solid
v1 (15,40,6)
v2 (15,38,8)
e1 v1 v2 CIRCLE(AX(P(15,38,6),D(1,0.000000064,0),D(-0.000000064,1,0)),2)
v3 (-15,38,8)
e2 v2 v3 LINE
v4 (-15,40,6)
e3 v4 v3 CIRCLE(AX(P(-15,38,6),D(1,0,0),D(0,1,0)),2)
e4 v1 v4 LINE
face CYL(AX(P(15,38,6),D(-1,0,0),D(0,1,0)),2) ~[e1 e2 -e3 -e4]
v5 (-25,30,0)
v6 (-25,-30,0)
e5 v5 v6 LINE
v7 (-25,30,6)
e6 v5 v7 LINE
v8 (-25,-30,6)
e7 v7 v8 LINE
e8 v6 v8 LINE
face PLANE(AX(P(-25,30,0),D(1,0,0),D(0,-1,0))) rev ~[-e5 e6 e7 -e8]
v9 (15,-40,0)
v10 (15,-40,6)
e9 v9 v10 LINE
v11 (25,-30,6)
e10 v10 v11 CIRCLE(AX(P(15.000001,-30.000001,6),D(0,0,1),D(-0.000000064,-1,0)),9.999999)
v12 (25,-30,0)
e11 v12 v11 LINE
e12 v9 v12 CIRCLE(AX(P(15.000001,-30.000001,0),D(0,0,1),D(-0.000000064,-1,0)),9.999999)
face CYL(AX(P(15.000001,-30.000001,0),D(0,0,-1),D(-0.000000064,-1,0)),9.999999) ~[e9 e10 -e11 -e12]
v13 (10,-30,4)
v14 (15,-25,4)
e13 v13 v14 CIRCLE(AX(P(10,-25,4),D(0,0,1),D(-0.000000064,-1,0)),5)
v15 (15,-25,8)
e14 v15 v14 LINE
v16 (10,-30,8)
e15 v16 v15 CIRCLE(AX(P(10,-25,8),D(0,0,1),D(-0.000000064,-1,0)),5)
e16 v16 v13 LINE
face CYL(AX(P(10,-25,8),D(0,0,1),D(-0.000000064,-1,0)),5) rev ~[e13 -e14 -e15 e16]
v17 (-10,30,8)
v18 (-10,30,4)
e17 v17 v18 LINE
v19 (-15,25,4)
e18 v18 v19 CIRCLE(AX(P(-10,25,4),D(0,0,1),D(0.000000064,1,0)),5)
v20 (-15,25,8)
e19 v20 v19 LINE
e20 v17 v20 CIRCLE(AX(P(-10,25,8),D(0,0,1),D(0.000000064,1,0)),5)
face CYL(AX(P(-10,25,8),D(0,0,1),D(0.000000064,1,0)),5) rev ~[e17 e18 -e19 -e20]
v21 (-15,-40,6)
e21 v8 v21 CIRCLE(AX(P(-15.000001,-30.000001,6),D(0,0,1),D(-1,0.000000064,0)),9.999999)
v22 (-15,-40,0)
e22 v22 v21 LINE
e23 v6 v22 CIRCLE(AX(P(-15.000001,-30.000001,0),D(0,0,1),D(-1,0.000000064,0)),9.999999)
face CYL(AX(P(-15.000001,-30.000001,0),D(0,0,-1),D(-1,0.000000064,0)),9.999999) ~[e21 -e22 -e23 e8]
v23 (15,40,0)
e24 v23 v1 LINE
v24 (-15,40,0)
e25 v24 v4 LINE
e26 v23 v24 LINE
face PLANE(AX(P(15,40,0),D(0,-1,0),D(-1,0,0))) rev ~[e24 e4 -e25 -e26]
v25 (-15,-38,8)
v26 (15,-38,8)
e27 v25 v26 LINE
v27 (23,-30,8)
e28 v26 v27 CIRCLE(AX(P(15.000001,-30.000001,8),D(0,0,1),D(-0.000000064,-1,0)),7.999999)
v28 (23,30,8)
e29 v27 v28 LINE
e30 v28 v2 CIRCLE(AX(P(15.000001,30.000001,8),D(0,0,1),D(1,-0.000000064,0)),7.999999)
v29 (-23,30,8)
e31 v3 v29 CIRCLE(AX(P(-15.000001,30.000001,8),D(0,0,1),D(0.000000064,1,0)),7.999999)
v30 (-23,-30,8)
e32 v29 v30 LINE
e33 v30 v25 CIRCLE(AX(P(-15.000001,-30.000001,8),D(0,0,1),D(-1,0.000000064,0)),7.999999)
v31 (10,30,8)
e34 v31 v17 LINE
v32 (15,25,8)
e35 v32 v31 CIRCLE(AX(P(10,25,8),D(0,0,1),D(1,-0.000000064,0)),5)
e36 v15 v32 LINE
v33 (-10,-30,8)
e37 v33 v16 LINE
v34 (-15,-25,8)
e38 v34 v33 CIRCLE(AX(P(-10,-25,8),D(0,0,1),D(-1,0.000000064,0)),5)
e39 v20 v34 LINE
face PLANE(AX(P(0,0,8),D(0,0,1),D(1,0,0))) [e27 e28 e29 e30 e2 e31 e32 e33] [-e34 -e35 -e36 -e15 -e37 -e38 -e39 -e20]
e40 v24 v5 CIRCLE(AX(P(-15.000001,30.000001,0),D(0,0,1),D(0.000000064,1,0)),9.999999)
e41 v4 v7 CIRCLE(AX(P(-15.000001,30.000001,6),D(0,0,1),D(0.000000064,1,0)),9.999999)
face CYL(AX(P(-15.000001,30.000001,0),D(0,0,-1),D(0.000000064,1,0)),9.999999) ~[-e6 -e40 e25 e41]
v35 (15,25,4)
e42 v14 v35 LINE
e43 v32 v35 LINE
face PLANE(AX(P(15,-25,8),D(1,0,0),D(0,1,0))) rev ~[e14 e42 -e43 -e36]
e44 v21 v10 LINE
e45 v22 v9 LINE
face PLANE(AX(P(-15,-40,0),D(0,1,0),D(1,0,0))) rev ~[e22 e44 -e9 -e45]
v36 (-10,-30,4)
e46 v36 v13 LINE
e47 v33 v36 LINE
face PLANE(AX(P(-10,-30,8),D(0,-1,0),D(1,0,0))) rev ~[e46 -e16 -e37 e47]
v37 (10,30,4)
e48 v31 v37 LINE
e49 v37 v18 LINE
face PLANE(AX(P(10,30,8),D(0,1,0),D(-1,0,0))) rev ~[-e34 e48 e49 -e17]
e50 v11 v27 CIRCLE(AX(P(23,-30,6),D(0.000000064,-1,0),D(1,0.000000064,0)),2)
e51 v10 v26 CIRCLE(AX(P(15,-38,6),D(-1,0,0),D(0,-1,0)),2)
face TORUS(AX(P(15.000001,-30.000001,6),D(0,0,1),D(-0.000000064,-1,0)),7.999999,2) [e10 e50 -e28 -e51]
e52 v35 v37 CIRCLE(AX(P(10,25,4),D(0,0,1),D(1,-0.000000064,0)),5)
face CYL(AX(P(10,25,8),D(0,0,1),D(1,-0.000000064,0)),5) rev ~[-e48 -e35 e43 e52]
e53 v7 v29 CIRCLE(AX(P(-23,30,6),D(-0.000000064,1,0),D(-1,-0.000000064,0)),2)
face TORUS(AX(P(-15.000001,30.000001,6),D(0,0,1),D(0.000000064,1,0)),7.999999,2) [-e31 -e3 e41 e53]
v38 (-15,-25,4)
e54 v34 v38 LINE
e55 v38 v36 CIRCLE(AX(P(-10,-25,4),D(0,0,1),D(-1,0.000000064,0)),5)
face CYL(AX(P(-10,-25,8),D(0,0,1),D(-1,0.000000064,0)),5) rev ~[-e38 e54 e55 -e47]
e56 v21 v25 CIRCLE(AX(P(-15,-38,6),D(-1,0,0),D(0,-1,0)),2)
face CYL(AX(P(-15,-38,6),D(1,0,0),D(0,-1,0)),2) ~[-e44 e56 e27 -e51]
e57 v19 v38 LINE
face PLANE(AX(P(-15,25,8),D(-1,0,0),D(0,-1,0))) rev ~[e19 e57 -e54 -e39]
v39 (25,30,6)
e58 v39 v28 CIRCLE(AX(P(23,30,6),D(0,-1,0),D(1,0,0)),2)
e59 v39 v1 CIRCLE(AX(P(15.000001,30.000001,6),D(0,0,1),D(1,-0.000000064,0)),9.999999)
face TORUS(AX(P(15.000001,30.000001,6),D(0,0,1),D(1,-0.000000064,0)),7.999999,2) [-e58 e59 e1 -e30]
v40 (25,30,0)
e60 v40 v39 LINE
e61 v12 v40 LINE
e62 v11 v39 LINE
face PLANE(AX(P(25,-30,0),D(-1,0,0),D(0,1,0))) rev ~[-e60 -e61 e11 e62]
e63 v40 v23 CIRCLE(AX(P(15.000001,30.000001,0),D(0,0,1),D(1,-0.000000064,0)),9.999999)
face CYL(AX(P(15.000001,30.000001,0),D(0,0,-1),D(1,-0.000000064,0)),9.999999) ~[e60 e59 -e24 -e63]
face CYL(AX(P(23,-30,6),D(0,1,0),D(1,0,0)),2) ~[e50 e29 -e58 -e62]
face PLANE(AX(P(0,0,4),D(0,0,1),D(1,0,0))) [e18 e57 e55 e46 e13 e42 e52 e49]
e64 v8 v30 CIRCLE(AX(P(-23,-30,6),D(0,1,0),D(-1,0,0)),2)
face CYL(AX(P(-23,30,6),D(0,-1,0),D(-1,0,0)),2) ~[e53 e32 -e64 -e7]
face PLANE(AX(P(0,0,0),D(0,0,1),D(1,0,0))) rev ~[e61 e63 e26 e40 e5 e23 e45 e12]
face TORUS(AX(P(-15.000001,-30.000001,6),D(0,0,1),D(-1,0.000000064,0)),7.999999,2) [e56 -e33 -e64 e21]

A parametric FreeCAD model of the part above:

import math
import FreeCAD as App
import Part
import Sketcher
from FreeCAD import Vector
Q = App.Units.Quantity


def edges_at(feature, points):
    """Names of the edges that pass closest to the given points."""
    edges = feature.Shape.Edges
    near = lambda p: min(range(len(edges)), key=lambda i: edges[i].distToShape(Part.Vertex(*p))[0])
    return sorted({f"Edge{near(p) + 1}" for p in points})

doc = App.newDocument("Part")
body = doc.addObject("PartDesign::Body", "Body")

# Sketch on XY plane
sketch1 = body.newObject("Sketcher::SketchObject", "Sketch")
sketch1.AttachmentSupport = (doc.getObject("XY_Plane"), [""])
sketch1.MapMode = "FlatFace"
sketch1.addGeometry([
    Part.LineSegment(Vector(-15, -40, 0), Vector(15, -40, 0)),  # 0
    Part.ArcOfCircle(Part.Circle(Vector(15, -30, 0), Vector(0, 0, 1), 10), math.radians(-90), math.radians(0)),  # 1
    Part.LineSegment(Vector(25, -30, 0), Vector(25, 30, 0)),  # 2
    Part.ArcOfCircle(Part.Circle(Vector(15, 30, 0), Vector(0, 0, 1), 10), math.radians(0), math.radians(90)),  # 3
    Part.LineSegment(Vector(15, 40, 0), Vector(-15, 40, 0)),  # 4
    Part.ArcOfCircle(Part.Circle(Vector(-15, 30, 0), Vector(0, 0, 1), 10), math.radians(90), math.radians(180)),  # 5
    Part.LineSegment(Vector(-25, 30, 0), Vector(-25, -30, 0)),  # 6
    Part.ArcOfCircle(Part.Circle(Vector(-15, -30, 0), Vector(0, 0, 1), 10), math.radians(180), math.radians(270)),  # 7
], False)
sketch1.addConstraint([
    Sketcher.Constraint("Tangent", 0, 2, 1, 1),
    Sketcher.Constraint("Tangent", 1, 2, 2, 1),
    Sketcher.Constraint("Tangent", 2, 2, 3, 1),
    Sketcher.Constraint("Tangent", 3, 2, 4, 1),
    Sketcher.Constraint("Tangent", 4, 2, 5, 1),
    Sketcher.Constraint("Tangent", 5, 2, 6, 1),
    Sketcher.Constraint("Tangent", 6, 2, 7, 1),
    Sketcher.Constraint("Tangent", 7, 2, 0, 1),
    Sketcher.Constraint("Horizontal", 0),
    Sketcher.Constraint("Vertical", 2),
    Sketcher.Constraint("Horizontal", 4),
    Sketcher.Constraint("Vertical", 6),
    Sketcher.Constraint("Equal", 1, 3),
    Sketcher.Constraint("Equal", 3, 5),
    Sketcher.Constraint("Equal", 5, 7),
    Sketcher.Constraint("Symmetric", 1, 3, 5, 3, -1, 1),
    Sketcher.Constraint("Radius", 1, Q("9.999999 mm")),
    Sketcher.Constraint("DistanceX", 0, 1, 0, 2, Q("30 mm")),
    Sketcher.Constraint("DistanceY", 2, 1, 2, 2, Q("60 mm")),
])
pad1 = body.newObject("PartDesign::Pad", "Pad")
pad1.Profile = sketch1
pad1.Length = 8
doc.recompute()

fillet = body.newObject("PartDesign::Fillet", "Fillet")
fillet.Base = (pad1, edges_at(pad1, [
    (0, -40, 8),
    (22.071, -37.071, 8),
    (25, 0, 8),
    (22.071, 37.071, 8),
    (0, 40, 8),
    (-22.071, 37.071, 8),
    (-25, 0, 8),
    (-22.071, -37.071, 8),
]))
fillet.Radius = 2

# Sketch on XY plane
sketch2 = body.newObject("Sketcher::SketchObject", "Sketch001")
sketch2.AttachmentSupport = (doc.getObject("XY_Plane"), [""])
sketch2.MapMode = "FlatFace"
sketch2.AttachmentOffset = App.Placement(Vector(0, 0, 8), App.Rotation())
sketch2.addGeometry([
    Part.LineSegment(Vector(-10, -30, 0), Vector(10, -30, 0)),  # 0
    Part.ArcOfCircle(Part.Circle(Vector(10, -25, 0), Vector(0, 0, 1), 5), math.radians(-90), math.radians(0)),  # 1
    Part.LineSegment(Vector(15, -25, 0), Vector(15, 25, 0)),  # 2
    Part.ArcOfCircle(Part.Circle(Vector(10, 25, 0), Vector(0, 0, 1), 5), math.radians(0), math.radians(90)),  # 3
    Part.LineSegment(Vector(10, 30, 0), Vector(-10, 30, 0)),  # 4
    Part.ArcOfCircle(Part.Circle(Vector(-10, 25, 0), Vector(0, 0, 1), 5), math.radians(90), math.radians(180)),  # 5
    Part.LineSegment(Vector(-15, 25, 0), Vector(-15, -25, 0)),  # 6
    Part.ArcOfCircle(Part.Circle(Vector(-10, -25, 0), Vector(0, 0, 1), 5), math.radians(180), math.radians(270)),  # 7
], False)
sketch2.addConstraint([
    Sketcher.Constraint("Tangent", 0, 2, 1, 1),
    Sketcher.Constraint("Tangent", 1, 2, 2, 1),
    Sketcher.Constraint("Tangent", 2, 2, 3, 1),
    Sketcher.Constraint("Tangent", 3, 2, 4, 1),
    Sketcher.Constraint("Tangent", 4, 2, 5, 1),
    Sketcher.Constraint("Tangent", 5, 2, 6, 1),
    Sketcher.Constraint("Tangent", 6, 2, 7, 1),
    Sketcher.Constraint("Tangent", 7, 2, 0, 1),
    Sketcher.Constraint("Horizontal", 0),
    Sketcher.Constraint("Vertical", 2),
    Sketcher.Constraint("Horizontal", 4),
    Sketcher.Constraint("Vertical", 6),
    Sketcher.Constraint("Equal", 1, 3),
    Sketcher.Constraint("Equal", 3, 5),
    Sketcher.Constraint("Equal", 5, 7),
    Sketcher.Constraint("Symmetric", 1, 3, 5, 3, -1, 1),
    Sketcher.Constraint("Radius", 1, Q("5 mm")),
    Sketcher.Constraint("DistanceX", 0, 1, 0, 2, Q("20 mm")),
    Sketcher.Constraint("DistanceY", 2, 1, 2, 2, Q("50 mm")),
])
pocket1 = body.newObject("PartDesign::Pocket", "Pocket")
pocket1.Profile = sketch2
pocket1.Length = 4

doc.recompute()
